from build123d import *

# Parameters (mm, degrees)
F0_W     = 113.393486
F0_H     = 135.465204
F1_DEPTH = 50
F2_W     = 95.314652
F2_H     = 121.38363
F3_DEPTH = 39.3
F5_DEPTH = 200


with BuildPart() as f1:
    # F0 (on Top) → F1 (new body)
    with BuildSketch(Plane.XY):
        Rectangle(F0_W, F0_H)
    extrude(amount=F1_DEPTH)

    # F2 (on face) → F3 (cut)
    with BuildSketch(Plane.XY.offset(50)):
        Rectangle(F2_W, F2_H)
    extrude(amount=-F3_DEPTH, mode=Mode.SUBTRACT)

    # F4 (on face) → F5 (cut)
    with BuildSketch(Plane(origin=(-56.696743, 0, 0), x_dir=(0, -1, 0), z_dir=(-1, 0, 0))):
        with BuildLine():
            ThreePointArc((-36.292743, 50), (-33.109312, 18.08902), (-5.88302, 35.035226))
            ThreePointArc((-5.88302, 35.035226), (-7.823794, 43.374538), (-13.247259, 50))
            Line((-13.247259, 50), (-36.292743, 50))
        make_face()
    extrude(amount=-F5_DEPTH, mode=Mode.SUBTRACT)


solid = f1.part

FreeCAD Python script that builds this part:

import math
import FreeCAD as App
import Part
import Sketcher
Q = App.Units.Quantity

doc = App.newDocument("Part")
body = doc.addObject("PartDesign::Body", "Body")

sketch1 = doc.addObject("Sketcher::SketchObject", "Sketch")
body.addObject(sketch1)
sketch1.AttachmentSupport = (doc.XY_Plane, [""])
sketch1.MapMode = "FlatFace"
sketch1.addGeometry(Part.LineSegment(App.Vector(-57, 68, 0), App.Vector(-57, -68, 0)), False)
sketch1.addGeometry(Part.LineSegment(App.Vector(-57, -68, 0), App.Vector(57, -68, 0)), False)
sketch1.addGeometry(Part.LineSegment(App.Vector(57, -68, 0), App.Vector(57, 68, 0)), False)
sketch1.addGeometry(Part.LineSegment(App.Vector(57, 68, 0), App.Vector(-57, 68, 0)), False)
sketch1.addConstraint(Sketcher.Constraint("Coincident", 0, 2, 1, 1))
sketch1.addConstraint(Sketcher.Constraint("Coincident", 1, 2, 2, 1))
sketch1.addConstraint(Sketcher.Constraint("Coincident", 2, 2, 3, 1))
sketch1.addConstraint(Sketcher.Constraint("Coincident", 3, 2, 0, 1))
sketch1.addConstraint(Sketcher.Constraint("Vertical", 0))
sketch1.addConstraint(Sketcher.Constraint("Horizontal", 1))
sketch1.addConstraint(Sketcher.Constraint("Vertical", 2))
sketch1.addConstraint(Sketcher.Constraint("Horizontal", 3))
sketch1.addConstraint(Sketcher.Constraint("Symmetric", 0, 2, 2, 2, -1, 1))
sketch1.addConstraint(Sketcher.Constraint("DistanceY", 0, 2, -1, 1, Q("67.732602 mm")))
sketch1.addConstraint(Sketcher.Constraint("DistanceX", 1, 1, 1, 2, Q("113.393486 mm")))
pad1 = doc.addObject("PartDesign::Pad", "Pad")
body.addObject(pad1)
pad1.Profile = sketch1
pad1.Length = 50

sketch2 = doc.addObject("Sketcher::SketchObject", "Sketch001")
body.addObject(sketch2)
sketch2.AttachmentSupport = (doc.XY_Plane, [""])
sketch2.MapMode = "FlatFace"
sketch2.AttachmentOffset = App.Placement(App.Vector(0, 0, 50), App.Rotation())
sketch2.addGeometry(Part.LineSegment(App.Vector(-48, 61, 0), App.Vector(-48, -61, 0)), False)
sketch2.addGeometry(Part.LineSegment(App.Vector(-48, -61, 0), App.Vector(48, -61, 0)), False)
sketch2.addGeometry(Part.LineSegment(App.Vector(48, -61, 0), App.Vector(48, 61, 0)), False)
sketch2.addGeometry(Part.LineSegment(App.Vector(48, 61, 0), App.Vector(-48, 61, 0)), False)
sketch2.addConstraint(Sketcher.Constraint("Coincident", 0, 2, 1, 1))
sketch2.addConstraint(Sketcher.Constraint("Coincident", 1, 2, 2, 1))
sketch2.addConstraint(Sketcher.Constraint("Coincident", 2, 2, 3, 1))
sketch2.addConstraint(Sketcher.Constraint("Coincident", 3, 2, 0, 1))
sketch2.addConstraint(Sketcher.Constraint("Vertical", 0))
sketch2.addConstraint(Sketcher.Constraint("Horizontal", 1))
sketch2.addConstraint(Sketcher.Constraint("Vertical", 2))
sketch2.addConstraint(Sketcher.Constraint("Horizontal", 3))
sketch2.addConstraint(Sketcher.Constraint("Symmetric", 0, 2, 2, 2, -1, 1))
sketch2.addConstraint(Sketcher.Constraint("DistanceX", 1, 1, 1, 2, Q("95.314652 mm")))
sketch2.addConstraint(Sketcher.Constraint("DistanceY", 0, 2, 0, 1, Q("121.38363 mm")))
pocket1 = doc.addObject("PartDesign::Pocket", "Pocket")
body.addObject(pocket1)
pocket1.Profile = sketch2
pocket1.Length = 39.3

sketch3 = doc.addObject("Sketcher::SketchObject", "Sketch002")
body.addObject(sketch3)
sketch3.AttachmentSupport = (doc.YZ_Plane, [""])
sketch3.MapMode = "FlatFace"
sketch3.AttachmentOffset = App.Placement(App.Vector(0, 0, -56.696743), App.Rotation())
sketch3.addGeometry(Part.ArcOfCircle(Part.Circle(App.Vector(25, 35, 0), App.Vector(0, 0, 1), 19), math.radians(-180), math.radians(52)), False)
sketch3.addGeometry(Part.ArcOfCircle(Part.Circle(App.Vector(25, 35, 0), App.Vector(0, 0, 1), 19), math.radians(128), math.radians(180)), False)
sketch3.addGeometry(Part.LineSegment(App.Vector(13, 50, 0), App.Vector(36, 50, 0)), False)
sketch3.addConstraint(Sketcher.Constraint("Tangent", 0, 1, 1, 2))
sketch3.addConstraint(Sketcher.Constraint("Coincident", 1, 1, 2, 1))
sketch3.addConstraint(Sketcher.Constraint("Coincident", 2, 2, 0, 2))
sketch3.addConstraint(Sketcher.Constraint("Horizontal", 2))
sketch3.addConstraint(Sketcher.Constraint("Equal", 0, 1))
sketch3.addConstraint(Sketcher.Constraint("Horizontal", 1, 3, 0, 1))
sketch3.addConstraint(Sketcher.Constraint("DistanceY", -1, 1, 1, 1, Q("50 mm")))
sketch3.addConstraint(Sketcher.Constraint("DistanceX", -1, 1, 0, 3, Q("24.770001 mm")))
sketch3.addConstraint(Sketcher.Constraint("Radius", 0, Q("18.886981 mm")))
sketch3.addConstraint(Sketcher.Constraint("DistanceX", 2, 1, 2, 2, Q("23.045484 mm")))
pocket2 = doc.addObject("PartDesign::Pocket", "Pocket001")
body.addObject(pocket2)
pocket2.Profile = sketch3
pocket2.Length = 200
pocket2.Reversed = True

doc.recompute()
